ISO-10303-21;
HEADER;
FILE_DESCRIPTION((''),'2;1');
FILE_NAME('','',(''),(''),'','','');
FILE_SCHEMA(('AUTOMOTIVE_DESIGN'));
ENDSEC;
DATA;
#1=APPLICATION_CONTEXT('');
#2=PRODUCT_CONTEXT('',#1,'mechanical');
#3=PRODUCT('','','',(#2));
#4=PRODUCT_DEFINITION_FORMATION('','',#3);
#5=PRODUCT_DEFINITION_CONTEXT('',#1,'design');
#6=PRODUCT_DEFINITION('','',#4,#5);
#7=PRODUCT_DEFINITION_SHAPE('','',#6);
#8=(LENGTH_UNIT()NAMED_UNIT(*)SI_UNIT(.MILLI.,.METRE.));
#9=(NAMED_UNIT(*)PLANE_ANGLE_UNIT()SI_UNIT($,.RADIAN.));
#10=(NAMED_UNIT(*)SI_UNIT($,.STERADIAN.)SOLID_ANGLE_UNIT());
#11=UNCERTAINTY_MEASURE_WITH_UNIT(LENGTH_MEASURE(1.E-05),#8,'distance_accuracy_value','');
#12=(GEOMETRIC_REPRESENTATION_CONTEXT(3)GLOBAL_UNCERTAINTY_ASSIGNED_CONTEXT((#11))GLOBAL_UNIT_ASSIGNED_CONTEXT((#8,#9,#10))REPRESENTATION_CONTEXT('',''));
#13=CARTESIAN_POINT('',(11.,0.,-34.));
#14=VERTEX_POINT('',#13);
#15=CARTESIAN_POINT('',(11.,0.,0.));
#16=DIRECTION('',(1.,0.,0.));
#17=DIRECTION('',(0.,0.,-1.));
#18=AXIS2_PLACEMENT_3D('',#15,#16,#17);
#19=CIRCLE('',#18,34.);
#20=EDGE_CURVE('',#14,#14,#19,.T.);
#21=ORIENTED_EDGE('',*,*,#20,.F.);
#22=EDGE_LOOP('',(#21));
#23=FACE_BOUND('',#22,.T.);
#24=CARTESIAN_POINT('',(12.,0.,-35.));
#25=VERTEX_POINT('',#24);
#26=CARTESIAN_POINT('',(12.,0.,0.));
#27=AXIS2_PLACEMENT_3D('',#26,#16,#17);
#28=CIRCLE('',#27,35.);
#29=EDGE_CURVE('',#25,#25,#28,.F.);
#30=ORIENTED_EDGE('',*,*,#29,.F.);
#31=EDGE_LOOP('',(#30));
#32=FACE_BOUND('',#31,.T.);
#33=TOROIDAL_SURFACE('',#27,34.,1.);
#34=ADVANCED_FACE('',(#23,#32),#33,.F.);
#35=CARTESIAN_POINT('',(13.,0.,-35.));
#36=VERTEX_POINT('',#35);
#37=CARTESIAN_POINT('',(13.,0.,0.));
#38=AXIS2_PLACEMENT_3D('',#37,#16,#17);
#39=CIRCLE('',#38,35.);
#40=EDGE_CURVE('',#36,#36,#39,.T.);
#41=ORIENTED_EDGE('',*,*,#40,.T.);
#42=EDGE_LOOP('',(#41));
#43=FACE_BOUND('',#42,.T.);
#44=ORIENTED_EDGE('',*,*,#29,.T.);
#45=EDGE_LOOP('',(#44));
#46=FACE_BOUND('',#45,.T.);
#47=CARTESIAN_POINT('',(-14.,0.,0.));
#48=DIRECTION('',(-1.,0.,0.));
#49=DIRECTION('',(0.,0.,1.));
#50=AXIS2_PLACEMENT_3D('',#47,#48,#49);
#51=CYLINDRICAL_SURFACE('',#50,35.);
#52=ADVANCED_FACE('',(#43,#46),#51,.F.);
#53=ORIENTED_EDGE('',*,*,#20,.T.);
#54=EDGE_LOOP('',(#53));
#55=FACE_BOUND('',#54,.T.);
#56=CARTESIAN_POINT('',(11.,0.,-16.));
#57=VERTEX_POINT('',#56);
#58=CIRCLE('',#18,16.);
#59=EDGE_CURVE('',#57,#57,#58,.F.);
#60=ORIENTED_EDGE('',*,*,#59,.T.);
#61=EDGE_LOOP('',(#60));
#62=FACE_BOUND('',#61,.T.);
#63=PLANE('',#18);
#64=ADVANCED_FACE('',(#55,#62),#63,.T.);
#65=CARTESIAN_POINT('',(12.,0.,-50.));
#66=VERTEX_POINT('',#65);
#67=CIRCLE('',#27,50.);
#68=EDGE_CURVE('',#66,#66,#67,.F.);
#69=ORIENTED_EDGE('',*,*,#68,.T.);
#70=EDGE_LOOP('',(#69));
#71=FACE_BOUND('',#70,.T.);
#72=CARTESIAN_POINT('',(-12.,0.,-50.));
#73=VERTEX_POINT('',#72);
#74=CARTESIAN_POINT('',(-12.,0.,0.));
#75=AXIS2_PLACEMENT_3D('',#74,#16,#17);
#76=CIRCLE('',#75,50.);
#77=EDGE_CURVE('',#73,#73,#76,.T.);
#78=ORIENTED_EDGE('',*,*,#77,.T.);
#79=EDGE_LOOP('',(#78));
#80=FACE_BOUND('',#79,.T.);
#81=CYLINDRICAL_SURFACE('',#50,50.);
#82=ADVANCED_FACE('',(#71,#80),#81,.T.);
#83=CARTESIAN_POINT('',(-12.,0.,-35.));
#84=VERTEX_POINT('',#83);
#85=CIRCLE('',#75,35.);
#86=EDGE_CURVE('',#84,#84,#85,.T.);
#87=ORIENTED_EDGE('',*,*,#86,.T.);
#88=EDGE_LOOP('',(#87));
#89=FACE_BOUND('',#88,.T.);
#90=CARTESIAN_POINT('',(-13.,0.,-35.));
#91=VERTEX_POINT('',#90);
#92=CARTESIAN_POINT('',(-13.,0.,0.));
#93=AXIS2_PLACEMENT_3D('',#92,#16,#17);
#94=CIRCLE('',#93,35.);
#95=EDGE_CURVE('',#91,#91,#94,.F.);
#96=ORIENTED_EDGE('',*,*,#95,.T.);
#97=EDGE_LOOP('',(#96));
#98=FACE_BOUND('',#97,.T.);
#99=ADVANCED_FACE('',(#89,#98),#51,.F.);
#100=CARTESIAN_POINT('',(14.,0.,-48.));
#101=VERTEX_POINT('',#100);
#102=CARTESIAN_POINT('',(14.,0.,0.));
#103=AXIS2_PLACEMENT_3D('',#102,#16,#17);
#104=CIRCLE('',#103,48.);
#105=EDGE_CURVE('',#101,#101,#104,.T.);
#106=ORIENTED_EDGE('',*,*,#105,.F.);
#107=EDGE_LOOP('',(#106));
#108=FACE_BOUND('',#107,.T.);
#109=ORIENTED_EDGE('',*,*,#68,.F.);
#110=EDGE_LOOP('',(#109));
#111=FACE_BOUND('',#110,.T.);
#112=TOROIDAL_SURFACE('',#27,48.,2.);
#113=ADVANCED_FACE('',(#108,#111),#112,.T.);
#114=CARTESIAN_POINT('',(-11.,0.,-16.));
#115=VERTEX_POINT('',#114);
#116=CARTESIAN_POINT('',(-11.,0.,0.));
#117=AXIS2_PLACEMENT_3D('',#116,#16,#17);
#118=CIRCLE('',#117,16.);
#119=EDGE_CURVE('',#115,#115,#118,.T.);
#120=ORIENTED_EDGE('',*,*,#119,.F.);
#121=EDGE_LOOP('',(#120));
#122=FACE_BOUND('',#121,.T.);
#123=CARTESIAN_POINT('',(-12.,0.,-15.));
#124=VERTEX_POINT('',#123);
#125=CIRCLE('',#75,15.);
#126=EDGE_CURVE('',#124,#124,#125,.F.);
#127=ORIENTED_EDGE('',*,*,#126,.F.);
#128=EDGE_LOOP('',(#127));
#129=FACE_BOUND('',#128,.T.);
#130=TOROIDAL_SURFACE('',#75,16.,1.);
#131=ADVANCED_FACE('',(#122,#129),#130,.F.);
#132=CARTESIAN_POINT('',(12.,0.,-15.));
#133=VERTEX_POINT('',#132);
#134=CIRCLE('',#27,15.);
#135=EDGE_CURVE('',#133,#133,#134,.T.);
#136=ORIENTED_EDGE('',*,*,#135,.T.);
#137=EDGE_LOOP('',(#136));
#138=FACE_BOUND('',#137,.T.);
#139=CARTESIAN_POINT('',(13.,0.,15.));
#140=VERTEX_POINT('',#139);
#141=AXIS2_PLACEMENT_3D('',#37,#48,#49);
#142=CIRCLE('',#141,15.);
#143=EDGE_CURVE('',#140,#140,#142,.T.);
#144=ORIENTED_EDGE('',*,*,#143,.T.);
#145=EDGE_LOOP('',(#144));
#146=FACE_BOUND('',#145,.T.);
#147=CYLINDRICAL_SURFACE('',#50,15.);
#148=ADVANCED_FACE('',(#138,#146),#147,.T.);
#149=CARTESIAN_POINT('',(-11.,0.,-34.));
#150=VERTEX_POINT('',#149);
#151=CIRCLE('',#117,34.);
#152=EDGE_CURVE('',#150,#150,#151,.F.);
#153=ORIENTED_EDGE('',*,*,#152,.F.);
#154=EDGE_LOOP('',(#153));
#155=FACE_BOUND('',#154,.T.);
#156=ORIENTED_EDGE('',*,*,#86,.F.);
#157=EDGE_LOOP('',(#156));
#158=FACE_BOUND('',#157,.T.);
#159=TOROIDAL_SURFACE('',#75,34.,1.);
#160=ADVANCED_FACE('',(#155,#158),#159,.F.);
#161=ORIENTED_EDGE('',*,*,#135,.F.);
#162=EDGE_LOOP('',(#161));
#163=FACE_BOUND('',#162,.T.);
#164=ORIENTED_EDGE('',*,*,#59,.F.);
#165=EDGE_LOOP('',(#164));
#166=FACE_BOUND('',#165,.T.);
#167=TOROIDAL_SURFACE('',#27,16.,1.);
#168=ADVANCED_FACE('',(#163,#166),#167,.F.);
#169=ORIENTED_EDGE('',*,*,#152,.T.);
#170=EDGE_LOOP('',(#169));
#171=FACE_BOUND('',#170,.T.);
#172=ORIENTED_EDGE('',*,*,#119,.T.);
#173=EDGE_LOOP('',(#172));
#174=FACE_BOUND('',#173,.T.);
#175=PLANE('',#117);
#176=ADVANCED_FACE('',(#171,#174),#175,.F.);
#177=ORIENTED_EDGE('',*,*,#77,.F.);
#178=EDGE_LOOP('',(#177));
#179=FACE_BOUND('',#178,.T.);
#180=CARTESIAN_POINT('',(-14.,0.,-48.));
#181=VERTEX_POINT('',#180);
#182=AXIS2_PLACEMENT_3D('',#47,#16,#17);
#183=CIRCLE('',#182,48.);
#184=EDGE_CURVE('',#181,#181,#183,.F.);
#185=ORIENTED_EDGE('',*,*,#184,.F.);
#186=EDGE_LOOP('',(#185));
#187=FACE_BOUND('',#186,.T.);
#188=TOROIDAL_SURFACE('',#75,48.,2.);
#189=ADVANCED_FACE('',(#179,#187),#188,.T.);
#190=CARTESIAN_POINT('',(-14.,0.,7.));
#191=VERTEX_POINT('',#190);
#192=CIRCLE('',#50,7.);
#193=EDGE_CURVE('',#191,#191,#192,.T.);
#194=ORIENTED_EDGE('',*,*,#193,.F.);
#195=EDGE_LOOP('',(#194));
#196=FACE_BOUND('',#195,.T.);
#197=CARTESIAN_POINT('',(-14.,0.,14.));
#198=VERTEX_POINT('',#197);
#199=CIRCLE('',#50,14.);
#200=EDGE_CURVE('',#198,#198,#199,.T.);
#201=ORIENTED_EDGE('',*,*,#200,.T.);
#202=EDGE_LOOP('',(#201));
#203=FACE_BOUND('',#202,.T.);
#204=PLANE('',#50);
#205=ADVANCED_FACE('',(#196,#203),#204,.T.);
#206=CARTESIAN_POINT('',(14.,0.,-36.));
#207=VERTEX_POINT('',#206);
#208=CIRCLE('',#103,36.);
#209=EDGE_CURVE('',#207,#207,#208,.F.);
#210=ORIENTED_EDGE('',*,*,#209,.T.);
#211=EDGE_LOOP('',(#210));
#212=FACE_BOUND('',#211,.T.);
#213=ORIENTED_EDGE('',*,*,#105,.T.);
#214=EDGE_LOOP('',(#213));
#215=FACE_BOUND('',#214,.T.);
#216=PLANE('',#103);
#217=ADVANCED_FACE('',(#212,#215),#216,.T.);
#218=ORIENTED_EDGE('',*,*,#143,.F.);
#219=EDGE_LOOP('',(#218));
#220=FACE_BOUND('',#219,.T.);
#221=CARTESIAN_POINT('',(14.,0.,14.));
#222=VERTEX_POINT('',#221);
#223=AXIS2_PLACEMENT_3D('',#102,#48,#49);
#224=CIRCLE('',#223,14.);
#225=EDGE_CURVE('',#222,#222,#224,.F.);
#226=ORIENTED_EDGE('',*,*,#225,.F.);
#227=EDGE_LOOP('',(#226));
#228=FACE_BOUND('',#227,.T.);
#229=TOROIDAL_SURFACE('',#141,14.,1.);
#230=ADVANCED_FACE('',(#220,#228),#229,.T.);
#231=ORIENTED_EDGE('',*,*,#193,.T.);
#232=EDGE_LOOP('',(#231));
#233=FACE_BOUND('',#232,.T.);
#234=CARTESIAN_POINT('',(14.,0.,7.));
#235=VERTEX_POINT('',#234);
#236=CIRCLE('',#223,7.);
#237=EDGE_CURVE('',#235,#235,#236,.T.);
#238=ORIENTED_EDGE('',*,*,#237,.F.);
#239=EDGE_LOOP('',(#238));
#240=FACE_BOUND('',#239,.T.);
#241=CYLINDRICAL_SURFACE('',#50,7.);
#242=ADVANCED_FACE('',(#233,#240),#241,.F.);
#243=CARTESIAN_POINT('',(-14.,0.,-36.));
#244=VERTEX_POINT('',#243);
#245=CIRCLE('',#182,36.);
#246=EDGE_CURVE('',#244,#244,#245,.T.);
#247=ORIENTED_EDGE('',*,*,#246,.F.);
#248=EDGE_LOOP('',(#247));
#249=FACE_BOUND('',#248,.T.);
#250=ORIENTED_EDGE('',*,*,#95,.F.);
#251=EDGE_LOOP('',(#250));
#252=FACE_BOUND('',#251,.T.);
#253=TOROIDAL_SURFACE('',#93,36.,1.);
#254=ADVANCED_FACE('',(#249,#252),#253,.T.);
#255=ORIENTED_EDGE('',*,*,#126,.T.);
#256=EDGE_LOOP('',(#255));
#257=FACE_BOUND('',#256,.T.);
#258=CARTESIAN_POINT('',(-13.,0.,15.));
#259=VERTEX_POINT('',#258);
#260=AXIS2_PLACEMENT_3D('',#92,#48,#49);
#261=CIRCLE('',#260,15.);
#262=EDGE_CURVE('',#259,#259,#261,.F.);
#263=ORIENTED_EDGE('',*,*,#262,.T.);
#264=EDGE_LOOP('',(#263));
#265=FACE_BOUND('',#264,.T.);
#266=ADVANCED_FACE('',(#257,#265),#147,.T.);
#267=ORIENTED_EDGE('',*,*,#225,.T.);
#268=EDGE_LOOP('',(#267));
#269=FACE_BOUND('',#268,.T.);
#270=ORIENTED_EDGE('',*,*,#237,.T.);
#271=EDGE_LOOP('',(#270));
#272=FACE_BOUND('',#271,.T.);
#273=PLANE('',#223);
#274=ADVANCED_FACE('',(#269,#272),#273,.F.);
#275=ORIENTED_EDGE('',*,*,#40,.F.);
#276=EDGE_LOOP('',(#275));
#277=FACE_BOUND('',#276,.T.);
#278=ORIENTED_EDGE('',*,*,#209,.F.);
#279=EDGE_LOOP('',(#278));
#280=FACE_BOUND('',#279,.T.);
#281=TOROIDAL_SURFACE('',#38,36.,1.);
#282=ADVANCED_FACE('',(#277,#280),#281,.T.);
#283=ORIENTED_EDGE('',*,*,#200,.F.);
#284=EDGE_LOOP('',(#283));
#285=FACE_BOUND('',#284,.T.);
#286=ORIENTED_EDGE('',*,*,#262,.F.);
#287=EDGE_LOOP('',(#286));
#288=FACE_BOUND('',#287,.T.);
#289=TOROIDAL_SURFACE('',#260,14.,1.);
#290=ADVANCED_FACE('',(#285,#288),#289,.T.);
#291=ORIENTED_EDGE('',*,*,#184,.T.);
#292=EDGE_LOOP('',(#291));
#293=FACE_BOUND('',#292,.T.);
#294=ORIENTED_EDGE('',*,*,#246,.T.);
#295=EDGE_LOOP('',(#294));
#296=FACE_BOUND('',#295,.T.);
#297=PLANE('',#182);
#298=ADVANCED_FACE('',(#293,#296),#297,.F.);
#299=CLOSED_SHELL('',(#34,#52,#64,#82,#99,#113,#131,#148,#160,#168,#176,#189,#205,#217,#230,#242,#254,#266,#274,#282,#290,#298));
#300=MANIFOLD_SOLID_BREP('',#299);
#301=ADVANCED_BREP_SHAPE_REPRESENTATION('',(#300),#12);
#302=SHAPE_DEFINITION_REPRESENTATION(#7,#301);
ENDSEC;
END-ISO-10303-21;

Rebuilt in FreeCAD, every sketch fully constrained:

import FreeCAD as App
import Part
import Sketcher


def edges_at(feature, points):
    """Names of the edges that pass closest to the given points."""
    edges = feature.Shape.Edges
    near = lambda p: min(range(len(edges)), key=lambda i: edges[i].distToShape(Part.Vertex(*p))[0])
    return sorted({f"Edge{near(p) + 1}" for p in points})


def add_polygon(sketch, points):
    """Adds a closed chain of lines whose ends are joined by coincident constraints."""
    first, n = sketch.GeometryCount, len(points)
    for a, b in zip(points, points[1:] + points[:1]):
        sketch.addGeometry(Part.LineSegment(App.Vector(*a, 0), App.Vector(*b, 0)), False)
    for i in range(n):
        sketch.addConstraint(Sketcher.Constraint("Coincident", first + i, 2, first + (i + 1) % n, 1))

doc = App.newDocument("Part")
body = doc.addObject("PartDesign::Body", "Body")

sketch1 = doc.addObject("Sketcher::SketchObject", "Sketch")
body.addObject(sketch1)
sketch1.AttachmentSupport = (doc.XY_Plane, [""])
sketch1.MapMode = "FlatFace"
add_polygon(sketch1, [(-14, 15), (-14, 7), (14, 7), (14, 15), (11, 15), (11, 35), (14, 35), (14, 50), (-14, 50), (-14, 35), (-11, 35), (-11, 15)])
sketch1.addConstraint(Sketcher.Constraint("Vertical", 0))
sketch1.addConstraint(Sketcher.Constraint("Horizontal", 1))
sketch1.addConstraint(Sketcher.Constraint("Vertical", 2))
sketch1.addConstraint(Sketcher.Constraint("Horizontal", 3))
sketch1.addConstraint(Sketcher.Constraint("Vertical", 4))
sketch1.addConstraint(Sketcher.Constraint("Horizontal", 5))
sketch1.addConstraint(Sketcher.Constraint("Vertical", 6))
sketch1.addConstraint(Sketcher.Constraint("Horizontal", 7))
sketch1.addConstraint(Sketcher.Constraint("Vertical", 8))
sketch1.addConstraint(Sketcher.Constraint("Horizontal", 9))
sketch1.addConstraint(Sketcher.Constraint("Vertical", 10))
sketch1.addConstraint(Sketcher.Constraint("Horizontal", 11))
sketch1.addConstraint(Sketcher.Constraint("Symmetric", 5, 2, 8, 2, -2))
sketch1.addConstraint(Sketcher.Constraint("Symmetric", 3, 2, 10, 2, -2))
sketch1.addConstraint(Sketcher.Constraint("Vertical", 2, 2, 5, 2))
sketch1.addConstraint(Sketcher.Constraint("Vertical", 0, 2, 7, 2))
sketch1.addConstraint(Sketcher.Constraint("DistanceX", 1, 1, 1, 2, 28.0))
sketch1.addConstraint(Sketcher.Constraint("DistanceX", 3, 2, 3, 1, 3.0))
sketch1.addConstraint(Sketcher.Constraint("DistanceY", 0, 2, 0, 1, 8.0))
sketch1.addConstraint(Sketcher.Constraint("DistanceY", 4, 1, 4, 2, 20.0))
sketch1.addConstraint(Sketcher.Constraint("DistanceY", 6, 1, 6, 2, 15.0))
sketch1.addConstraint(Sketcher.Constraint("DistanceY", -1, 1, 0, 2, 7.0))
revolution = doc.addObject("PartDesign::Revolution", "Revolution")
body.addObject(revolution)
revolution.Profile = sketch1
revolution.ReferenceAxis = (sketch1, ["H_Axis"])
revolution.Angle = 360
doc.recompute()

fillet = doc.addObject("PartDesign::Fillet", "Fillet")
body.addObject(fillet)
fillet.Base = (revolution, edges_at(revolution, [(-14, 0, -50), (14, 0, -50)]))
fillet.Radius = 2
doc.recompute()

fillet2 = doc.addObject("PartDesign::Fillet", "Fillet001")
body.addObject(fillet2)
fillet2.Base = (fillet, edges_at(fillet, [
    (-11, 0, -15),
    (-11, 0, -35),
    (-14, 0, -35),
    (14, 0, -35),
    (11, 0, -35),
    (11, 0, -15),
    (14, 0, -15),
    (-14, 0, -15),
]))
fillet2.Radius = 1

doc.recompute()
